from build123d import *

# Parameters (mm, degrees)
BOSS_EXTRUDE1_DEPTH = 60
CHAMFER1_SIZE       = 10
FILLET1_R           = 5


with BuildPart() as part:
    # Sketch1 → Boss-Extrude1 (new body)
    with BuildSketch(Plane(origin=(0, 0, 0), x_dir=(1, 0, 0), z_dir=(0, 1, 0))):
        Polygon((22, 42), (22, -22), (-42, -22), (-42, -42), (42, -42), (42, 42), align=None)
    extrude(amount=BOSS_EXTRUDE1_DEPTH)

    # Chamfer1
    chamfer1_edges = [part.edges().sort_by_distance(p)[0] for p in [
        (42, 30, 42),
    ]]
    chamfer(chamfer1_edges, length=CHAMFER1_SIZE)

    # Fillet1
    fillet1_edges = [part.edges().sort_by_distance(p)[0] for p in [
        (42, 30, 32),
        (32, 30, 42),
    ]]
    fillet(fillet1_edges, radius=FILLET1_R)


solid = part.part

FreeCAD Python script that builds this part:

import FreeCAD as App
import Part
import Sketcher


def edges_at(feature, points):
    """Names of the edges that pass closest to the given points."""
    edges = feature.Shape.Edges
    near = lambda p: min(range(len(edges)), key=lambda i: edges[i].distToShape(Part.Vertex(*p))[0])
    return sorted({f"Edge{near(p) + 1}" for p in points})

doc = App.newDocument("Part")
params = doc.addObject("Spreadsheet::Sheet", "Params")
for row, (alias, value) in enumerate([
    ("sketch1_width", "64 mm"),
    ("sketch1_width2", "84 mm"),
    ("pad1_length", "60 mm"),
    ("chamfer_size", "10 mm"),
    ("fillet_radius", "5 mm"),
], start=1):
    params.set(f"A{row}", alias)
    params.set(f"B{row}", "=" + value)
    params.setAlias(f"B{row}", alias)

body = doc.addObject("PartDesign::Body", "Body")

# Sketch on XZ plane
sketch1 = body.newObject("Sketcher::SketchObject", "Sketch")
sketch1.AttachmentSupport = (doc.getObject("XZ_Plane"), [""])
sketch1.MapMode = "FlatFace"
sketch1.addGeometry(Part.LineSegment(App.Vector(22, -42, 0), App.Vector(22, 22, 0)), False)
sketch1.addGeometry(Part.LineSegment(App.Vector(22, 22, 0), App.Vector(-42, 22, 0)), False)
sketch1.addGeometry(Part.LineSegment(App.Vector(-42, 22, 0), App.Vector(-42, 42, 0)), False)
sketch1.addGeometry(Part.LineSegment(App.Vector(-42, 42, 0), App.Vector(42, 42, 0)), False)
sketch1.addGeometry(Part.LineSegment(App.Vector(42, 42, 0), App.Vector(42, -42, 0)), False)
sketch1.addGeometry(Part.LineSegment(App.Vector(42, -42, 0), App.Vector(22, -42, 0)), False)
sketch1.addConstraint(Sketcher.Constraint("Coincident", 0, 2, 1, 1))
sketch1.addConstraint(Sketcher.Constraint("Coincident", 1, 2, 2, 1))
sketch1.addConstraint(Sketcher.Constraint("Coincident", 2, 2, 3, 1))
sketch1.addConstraint(Sketcher.Constraint("Coincident", 3, 2, 4, 1))
sketch1.addConstraint(Sketcher.Constraint("Coincident", 4, 2, 5, 1))
sketch1.addConstraint(Sketcher.Constraint("Coincident", 5, 2, 0, 1))
sketch1.addConstraint(Sketcher.Constraint("Vertical", 0))
sketch1.addConstraint(Sketcher.Constraint("Horizontal", 1))
sketch1.addConstraint(Sketcher.Constraint("Vertical", 2))
sketch1.addConstraint(Sketcher.Constraint("Horizontal", 3))
sketch1.addConstraint(Sketcher.Constraint("Vertical", 4))
sketch1.addConstraint(Sketcher.Constraint("Horizontal", 5))
sketch1.addConstraint(Sketcher.Constraint("Symmetric", 2, 2, 4, 2, -1, 1))
sketch1.addConstraint(Sketcher.Constraint("Equal", 1, 0))
sketch1.addConstraint(Sketcher.Constraint("Equal", 5, 2))
sketch1.addConstraint(Sketcher.Constraint("DistanceX", 1, 2, 1, 1, 64.0))
sketch1.addConstraint(Sketcher.Constraint("DistanceX", 3, 1, 3, 2, 84.0))
sketch1.setExpression("Constraints[15]", "Params.sketch1_width")
sketch1.setExpression("Constraints[16]", "Params.sketch1_width2")
pad1 = body.newObject("PartDesign::Pad", "Pad")
pad1.Profile = sketch1
pad1.setExpression("Length", "Params.pad1_length")
pad1.Reversed = True
doc.recompute()

chamfer = body.newObject("PartDesign::Chamfer", "Chamfer")
chamfer.Base = (pad1, edges_at(pad1, [(42, 30, 42)]))
chamfer.setExpression("Size", "Params.chamfer_size")
doc.recompute()

fillet = body.newObject("PartDesign::Fillet", "Fillet")
fillet.Base = (chamfer, edges_at(chamfer, [(42, 30, 32), (32, 30, 42)]))
fillet.setExpression("Radius", "Params.fillet_radius")

doc.recompute()
